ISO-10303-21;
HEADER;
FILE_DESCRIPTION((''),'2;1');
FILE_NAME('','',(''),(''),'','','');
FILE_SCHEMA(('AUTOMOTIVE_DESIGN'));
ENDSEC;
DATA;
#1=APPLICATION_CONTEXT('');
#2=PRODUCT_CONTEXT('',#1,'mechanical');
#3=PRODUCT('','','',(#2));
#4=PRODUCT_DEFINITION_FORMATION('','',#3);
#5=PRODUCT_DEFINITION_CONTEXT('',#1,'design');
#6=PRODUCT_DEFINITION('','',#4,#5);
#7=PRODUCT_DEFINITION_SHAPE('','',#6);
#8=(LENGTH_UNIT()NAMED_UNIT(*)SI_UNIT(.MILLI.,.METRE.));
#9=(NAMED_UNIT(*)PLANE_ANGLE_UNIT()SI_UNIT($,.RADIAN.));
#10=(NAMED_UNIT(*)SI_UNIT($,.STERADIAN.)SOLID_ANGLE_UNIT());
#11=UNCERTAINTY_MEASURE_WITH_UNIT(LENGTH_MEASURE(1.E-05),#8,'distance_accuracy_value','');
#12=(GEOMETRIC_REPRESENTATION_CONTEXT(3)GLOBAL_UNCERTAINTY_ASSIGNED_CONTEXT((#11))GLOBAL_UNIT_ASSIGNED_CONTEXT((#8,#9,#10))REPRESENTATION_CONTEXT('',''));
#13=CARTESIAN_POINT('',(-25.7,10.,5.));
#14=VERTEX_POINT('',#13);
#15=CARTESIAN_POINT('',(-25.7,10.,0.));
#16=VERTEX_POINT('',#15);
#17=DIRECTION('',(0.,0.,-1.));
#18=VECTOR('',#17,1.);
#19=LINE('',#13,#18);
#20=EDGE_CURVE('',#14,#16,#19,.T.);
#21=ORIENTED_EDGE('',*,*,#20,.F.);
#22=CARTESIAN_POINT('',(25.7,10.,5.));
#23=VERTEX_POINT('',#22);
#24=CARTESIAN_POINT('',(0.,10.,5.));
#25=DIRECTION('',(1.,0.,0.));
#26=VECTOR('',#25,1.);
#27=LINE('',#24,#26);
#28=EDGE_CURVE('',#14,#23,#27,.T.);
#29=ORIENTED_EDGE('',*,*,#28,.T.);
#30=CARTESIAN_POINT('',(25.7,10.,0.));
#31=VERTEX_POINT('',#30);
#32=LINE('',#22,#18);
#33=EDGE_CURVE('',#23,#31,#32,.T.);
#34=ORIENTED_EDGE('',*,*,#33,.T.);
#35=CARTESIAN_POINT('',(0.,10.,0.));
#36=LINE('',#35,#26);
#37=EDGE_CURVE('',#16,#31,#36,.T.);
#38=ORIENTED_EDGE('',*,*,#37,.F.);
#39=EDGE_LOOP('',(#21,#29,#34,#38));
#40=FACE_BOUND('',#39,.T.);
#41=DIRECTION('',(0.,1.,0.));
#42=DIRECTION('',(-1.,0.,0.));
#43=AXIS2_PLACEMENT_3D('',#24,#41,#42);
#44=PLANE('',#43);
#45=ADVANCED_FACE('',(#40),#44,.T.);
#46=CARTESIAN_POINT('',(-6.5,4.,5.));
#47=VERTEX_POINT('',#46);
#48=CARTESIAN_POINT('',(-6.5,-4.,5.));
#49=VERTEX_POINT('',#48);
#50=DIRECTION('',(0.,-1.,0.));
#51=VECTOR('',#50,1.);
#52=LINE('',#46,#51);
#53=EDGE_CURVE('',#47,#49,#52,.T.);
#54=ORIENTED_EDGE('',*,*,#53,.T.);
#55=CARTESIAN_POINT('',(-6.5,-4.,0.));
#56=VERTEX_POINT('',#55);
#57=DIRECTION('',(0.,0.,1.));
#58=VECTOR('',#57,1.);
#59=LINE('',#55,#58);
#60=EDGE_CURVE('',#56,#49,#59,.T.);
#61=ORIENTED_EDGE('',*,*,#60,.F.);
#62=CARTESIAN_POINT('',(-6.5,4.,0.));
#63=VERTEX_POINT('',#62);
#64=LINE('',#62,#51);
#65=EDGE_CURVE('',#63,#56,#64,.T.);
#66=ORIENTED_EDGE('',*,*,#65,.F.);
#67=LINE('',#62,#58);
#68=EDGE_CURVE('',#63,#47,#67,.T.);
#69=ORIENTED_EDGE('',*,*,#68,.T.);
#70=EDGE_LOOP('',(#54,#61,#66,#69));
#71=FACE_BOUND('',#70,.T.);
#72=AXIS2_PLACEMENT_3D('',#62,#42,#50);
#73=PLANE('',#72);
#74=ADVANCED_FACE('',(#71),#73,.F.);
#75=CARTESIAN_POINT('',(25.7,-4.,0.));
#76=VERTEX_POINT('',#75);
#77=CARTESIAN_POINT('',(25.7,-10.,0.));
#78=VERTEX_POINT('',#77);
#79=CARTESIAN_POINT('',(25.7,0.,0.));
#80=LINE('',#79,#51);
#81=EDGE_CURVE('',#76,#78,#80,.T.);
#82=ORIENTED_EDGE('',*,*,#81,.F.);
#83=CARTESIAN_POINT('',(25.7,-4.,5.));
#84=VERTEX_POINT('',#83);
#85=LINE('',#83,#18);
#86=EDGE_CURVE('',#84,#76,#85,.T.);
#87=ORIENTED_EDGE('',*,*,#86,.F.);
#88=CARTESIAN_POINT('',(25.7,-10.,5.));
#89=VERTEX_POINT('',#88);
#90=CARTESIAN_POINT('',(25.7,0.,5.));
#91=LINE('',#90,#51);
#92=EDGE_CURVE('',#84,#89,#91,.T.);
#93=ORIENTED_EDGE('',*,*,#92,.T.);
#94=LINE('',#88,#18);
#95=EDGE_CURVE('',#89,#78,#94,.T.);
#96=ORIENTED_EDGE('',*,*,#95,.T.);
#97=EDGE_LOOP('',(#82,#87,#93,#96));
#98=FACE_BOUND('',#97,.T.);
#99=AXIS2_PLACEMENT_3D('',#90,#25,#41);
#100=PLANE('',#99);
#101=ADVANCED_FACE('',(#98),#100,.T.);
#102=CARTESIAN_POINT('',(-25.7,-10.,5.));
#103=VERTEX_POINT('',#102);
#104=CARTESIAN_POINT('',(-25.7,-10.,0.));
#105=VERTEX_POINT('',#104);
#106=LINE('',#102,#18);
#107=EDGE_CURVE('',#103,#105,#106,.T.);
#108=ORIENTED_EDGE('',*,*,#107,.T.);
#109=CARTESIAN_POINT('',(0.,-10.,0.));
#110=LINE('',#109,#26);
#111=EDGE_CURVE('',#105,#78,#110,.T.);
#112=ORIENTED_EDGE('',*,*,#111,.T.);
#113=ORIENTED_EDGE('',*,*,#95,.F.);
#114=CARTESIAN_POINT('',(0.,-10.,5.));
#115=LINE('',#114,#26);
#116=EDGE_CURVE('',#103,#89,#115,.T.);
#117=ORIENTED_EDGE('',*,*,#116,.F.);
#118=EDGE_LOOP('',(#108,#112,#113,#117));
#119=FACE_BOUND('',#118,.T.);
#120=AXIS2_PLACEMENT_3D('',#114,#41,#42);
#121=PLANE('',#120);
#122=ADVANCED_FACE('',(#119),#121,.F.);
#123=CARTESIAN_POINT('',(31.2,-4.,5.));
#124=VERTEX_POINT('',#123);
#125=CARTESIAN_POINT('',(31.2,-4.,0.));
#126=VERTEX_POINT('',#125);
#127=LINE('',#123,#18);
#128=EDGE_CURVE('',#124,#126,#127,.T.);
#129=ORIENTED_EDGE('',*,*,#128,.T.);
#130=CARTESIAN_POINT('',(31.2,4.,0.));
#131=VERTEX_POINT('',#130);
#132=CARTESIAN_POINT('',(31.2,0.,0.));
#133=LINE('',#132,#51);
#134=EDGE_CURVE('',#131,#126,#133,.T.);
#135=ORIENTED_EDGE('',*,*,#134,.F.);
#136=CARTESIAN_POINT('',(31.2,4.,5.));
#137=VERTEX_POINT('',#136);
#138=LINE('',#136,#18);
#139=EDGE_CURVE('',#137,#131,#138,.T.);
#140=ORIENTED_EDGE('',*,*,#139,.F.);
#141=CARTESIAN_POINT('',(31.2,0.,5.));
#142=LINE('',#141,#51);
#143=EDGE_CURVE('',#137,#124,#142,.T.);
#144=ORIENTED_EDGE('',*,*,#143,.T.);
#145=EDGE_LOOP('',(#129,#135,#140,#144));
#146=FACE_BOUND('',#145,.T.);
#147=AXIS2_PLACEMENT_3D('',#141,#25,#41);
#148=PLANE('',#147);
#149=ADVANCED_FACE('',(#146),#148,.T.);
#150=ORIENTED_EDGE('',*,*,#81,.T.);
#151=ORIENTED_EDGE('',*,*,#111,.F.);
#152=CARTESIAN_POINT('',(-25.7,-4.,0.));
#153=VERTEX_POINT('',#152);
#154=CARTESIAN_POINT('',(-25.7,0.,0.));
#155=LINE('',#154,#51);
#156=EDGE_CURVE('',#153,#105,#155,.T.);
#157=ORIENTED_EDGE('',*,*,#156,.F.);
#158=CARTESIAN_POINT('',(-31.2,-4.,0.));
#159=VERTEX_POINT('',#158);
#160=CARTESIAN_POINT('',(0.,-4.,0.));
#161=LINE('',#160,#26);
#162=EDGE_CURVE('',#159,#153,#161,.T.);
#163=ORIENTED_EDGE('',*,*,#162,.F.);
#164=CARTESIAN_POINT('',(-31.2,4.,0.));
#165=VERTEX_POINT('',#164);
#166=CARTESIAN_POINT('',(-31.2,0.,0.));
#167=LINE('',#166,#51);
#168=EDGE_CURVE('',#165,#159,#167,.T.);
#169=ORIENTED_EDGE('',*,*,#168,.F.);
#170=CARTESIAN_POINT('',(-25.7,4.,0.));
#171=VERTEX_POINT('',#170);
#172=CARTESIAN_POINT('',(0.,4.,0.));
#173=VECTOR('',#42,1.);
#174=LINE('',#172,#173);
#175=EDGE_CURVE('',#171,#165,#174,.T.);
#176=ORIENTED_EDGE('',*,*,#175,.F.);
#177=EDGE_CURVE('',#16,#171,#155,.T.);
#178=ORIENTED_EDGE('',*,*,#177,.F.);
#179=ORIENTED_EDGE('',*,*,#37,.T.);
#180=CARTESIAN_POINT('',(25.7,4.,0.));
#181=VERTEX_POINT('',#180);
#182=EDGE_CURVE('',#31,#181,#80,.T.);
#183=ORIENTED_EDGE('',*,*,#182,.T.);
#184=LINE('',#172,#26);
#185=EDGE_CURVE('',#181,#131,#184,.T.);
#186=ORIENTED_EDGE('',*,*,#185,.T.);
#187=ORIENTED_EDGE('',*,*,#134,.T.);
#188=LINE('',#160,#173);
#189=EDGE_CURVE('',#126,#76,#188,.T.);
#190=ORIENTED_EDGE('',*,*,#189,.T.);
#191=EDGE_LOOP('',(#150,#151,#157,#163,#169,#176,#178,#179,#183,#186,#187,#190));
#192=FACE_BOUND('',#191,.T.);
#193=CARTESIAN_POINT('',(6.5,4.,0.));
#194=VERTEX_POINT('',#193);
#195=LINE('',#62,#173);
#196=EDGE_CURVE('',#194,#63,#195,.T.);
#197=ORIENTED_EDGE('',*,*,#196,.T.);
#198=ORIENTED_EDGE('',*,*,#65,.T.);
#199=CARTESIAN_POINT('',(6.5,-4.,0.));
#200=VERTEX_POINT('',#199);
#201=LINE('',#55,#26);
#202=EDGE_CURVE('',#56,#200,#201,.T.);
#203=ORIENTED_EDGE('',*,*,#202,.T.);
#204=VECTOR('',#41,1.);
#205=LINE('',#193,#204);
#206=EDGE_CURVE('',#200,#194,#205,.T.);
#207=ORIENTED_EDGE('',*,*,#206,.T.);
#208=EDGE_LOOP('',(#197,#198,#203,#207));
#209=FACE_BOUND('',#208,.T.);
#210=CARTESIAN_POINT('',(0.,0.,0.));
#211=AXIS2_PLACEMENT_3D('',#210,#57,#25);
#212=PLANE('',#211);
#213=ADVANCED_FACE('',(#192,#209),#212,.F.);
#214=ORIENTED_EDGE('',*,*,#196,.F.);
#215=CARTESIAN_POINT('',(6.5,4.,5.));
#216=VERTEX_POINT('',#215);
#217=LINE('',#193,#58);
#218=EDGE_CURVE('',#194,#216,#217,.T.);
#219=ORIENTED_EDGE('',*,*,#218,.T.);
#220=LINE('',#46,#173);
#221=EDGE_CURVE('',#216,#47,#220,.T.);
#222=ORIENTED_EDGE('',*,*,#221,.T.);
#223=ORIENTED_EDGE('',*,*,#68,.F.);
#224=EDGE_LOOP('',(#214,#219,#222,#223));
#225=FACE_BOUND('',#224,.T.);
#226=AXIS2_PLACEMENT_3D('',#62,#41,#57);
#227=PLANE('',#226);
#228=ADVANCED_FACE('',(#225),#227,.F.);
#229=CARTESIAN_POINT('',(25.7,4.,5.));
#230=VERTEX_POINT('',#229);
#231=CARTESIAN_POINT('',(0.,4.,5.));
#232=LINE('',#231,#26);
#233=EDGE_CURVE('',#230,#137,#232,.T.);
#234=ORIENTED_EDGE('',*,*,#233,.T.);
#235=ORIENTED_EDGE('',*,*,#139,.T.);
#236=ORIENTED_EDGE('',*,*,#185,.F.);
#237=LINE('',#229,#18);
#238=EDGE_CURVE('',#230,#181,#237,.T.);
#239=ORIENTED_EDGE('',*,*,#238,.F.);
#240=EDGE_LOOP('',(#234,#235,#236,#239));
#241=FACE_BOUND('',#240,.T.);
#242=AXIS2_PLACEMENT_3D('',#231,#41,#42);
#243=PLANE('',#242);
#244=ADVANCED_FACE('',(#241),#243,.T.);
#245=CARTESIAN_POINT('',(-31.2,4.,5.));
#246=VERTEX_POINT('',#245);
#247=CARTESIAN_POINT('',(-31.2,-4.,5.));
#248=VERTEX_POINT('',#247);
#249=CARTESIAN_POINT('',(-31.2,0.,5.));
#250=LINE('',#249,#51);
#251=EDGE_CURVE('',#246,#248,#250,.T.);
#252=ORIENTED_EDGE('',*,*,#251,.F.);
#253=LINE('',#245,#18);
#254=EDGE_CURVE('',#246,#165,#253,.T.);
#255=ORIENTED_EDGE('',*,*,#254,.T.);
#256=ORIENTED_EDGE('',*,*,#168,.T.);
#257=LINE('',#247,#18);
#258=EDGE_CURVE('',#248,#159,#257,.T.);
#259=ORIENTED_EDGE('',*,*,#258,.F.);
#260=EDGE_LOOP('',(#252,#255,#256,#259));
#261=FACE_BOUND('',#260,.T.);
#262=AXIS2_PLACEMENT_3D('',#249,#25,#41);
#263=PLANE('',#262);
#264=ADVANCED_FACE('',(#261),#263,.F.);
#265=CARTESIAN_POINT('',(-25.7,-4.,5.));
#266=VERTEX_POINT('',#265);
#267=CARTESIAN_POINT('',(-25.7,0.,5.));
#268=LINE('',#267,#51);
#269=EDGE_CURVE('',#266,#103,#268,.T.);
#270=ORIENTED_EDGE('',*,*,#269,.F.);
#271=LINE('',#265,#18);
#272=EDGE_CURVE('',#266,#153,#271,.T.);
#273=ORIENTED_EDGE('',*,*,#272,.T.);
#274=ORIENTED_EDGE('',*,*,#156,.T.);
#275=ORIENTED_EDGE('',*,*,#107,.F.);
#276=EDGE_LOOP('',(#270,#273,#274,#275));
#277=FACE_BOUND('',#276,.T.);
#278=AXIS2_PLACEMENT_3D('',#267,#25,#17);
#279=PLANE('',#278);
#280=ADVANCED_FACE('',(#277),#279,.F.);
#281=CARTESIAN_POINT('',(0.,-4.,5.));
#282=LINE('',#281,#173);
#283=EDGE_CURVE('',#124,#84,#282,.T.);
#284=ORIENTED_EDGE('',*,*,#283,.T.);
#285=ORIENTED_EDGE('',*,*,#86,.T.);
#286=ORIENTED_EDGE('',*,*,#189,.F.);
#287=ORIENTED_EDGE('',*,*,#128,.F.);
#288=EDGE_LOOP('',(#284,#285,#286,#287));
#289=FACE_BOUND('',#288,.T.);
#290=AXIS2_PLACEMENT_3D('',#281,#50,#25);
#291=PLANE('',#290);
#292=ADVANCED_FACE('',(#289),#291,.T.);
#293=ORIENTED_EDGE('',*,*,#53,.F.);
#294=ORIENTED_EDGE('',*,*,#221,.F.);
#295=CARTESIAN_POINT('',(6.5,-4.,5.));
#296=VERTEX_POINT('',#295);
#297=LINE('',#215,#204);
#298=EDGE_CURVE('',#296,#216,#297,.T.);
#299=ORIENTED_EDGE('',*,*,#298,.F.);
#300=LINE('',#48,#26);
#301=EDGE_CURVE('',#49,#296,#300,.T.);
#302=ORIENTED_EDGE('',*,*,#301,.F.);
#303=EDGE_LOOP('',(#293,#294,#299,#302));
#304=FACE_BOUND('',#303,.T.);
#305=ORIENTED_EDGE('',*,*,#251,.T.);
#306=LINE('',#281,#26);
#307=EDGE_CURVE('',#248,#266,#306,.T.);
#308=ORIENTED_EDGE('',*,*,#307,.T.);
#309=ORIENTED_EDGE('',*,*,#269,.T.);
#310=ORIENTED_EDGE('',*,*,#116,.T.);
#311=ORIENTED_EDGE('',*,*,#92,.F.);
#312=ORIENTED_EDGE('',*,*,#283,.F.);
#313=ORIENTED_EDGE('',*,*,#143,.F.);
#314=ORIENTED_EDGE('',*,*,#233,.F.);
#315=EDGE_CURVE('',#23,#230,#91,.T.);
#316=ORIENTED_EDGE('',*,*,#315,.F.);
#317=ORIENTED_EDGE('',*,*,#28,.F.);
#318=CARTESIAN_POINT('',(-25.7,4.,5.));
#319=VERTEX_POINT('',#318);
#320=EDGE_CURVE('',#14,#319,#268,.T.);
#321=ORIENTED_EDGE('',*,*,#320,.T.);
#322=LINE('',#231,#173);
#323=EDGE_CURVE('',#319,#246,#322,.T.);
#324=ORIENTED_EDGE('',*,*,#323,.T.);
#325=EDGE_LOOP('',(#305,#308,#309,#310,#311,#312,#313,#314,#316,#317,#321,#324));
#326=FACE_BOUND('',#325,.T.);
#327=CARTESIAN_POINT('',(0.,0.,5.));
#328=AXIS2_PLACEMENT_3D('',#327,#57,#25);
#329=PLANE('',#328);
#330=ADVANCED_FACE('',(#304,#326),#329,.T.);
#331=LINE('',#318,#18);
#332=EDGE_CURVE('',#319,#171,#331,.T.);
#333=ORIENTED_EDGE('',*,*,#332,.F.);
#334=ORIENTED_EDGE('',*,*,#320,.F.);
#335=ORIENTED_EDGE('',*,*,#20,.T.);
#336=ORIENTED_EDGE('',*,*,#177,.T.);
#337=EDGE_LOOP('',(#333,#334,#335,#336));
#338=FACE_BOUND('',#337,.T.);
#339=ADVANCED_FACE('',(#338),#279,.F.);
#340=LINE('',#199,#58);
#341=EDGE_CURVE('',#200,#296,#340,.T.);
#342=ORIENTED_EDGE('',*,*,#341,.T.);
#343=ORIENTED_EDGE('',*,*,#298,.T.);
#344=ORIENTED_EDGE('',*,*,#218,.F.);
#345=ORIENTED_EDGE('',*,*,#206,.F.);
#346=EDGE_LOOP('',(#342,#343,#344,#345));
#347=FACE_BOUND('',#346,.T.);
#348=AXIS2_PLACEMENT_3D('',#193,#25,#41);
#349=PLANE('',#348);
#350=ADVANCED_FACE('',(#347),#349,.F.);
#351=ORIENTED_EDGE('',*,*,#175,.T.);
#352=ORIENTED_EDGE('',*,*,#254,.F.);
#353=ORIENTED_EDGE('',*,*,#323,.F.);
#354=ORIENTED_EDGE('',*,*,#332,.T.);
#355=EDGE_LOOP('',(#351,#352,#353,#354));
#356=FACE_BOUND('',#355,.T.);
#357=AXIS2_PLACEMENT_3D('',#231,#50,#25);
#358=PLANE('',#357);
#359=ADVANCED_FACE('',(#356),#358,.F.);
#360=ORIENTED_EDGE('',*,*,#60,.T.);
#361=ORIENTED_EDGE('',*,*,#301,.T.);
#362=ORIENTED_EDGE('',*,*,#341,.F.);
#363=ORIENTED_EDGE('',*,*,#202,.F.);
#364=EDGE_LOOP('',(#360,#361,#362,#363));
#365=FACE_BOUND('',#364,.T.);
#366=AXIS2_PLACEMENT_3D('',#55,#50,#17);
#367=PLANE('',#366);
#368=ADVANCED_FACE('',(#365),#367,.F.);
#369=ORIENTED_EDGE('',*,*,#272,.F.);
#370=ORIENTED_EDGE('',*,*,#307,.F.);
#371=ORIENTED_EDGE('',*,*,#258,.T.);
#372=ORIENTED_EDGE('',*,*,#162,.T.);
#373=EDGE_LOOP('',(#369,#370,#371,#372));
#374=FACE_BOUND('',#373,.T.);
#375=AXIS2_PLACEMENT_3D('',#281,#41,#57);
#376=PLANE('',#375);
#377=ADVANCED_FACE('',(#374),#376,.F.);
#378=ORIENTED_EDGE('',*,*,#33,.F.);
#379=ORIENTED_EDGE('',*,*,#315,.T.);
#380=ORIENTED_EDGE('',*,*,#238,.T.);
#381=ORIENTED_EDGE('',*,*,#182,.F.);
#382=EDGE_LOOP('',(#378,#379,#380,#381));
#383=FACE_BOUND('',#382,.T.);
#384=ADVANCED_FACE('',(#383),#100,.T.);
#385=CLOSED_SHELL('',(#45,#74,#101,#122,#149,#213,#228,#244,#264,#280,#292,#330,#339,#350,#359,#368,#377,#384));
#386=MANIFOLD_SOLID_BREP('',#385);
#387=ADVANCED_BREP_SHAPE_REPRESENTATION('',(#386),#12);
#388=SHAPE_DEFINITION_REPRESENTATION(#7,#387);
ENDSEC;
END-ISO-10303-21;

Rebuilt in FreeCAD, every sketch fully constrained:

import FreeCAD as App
import Part
import Sketcher
Q = App.Units.Quantity

doc = App.newDocument("Part")
body = doc.addObject("PartDesign::Body", "Body")

# Sketch on XY plane
sketch1 = body.newObject("Sketcher::SketchObject", "Sketch")
sketch1.AttachmentSupport = (doc.getObject("XY_Plane"), [""])
sketch1.MapMode = "FlatFace"
sketch1.addGeometry([
    Part.LineSegment(App.Vector(26, 10, 0), App.Vector(-26, 10, 0)),  # 0
    Part.LineSegment(App.Vector(-26, 10, 0), App.Vector(-26, 4, 0)),  # 1
    Part.LineSegment(App.Vector(-26, 4, 0), App.Vector(-31, 4, 0)),  # 2
    Part.LineSegment(App.Vector(-31, 4, 0), App.Vector(-31, -4, 0)),  # 3
    Part.LineSegment(App.Vector(-31, -4, 0), App.Vector(-26, -4, 0)),  # 4
    Part.LineSegment(App.Vector(-26, -4, 0), App.Vector(-26, -10, 0)),  # 5
    Part.LineSegment(App.Vector(-26, -10, 0), App.Vector(26, -10, 0)),  # 6
    Part.LineSegment(App.Vector(26, -10, 0), App.Vector(26, -4, 0)),  # 7
    Part.LineSegment(App.Vector(26, -4, 0), App.Vector(31, -4, 0)),  # 8
    Part.LineSegment(App.Vector(31, -4, 0), App.Vector(31, 4, 0)),  # 9
    Part.LineSegment(App.Vector(31, 4, 0), App.Vector(26, 4, 0)),  # 10
    Part.LineSegment(App.Vector(26, 4, 0), App.Vector(26, 10, 0)),  # 11
], False)
sketch1.addConstraint([
    Sketcher.Constraint("Coincident", 0, 2, 1, 1),
    Sketcher.Constraint("Coincident", 1, 2, 2, 1),
    Sketcher.Constraint("Coincident", 2, 2, 3, 1),
    Sketcher.Constraint("Coincident", 3, 2, 4, 1),
    Sketcher.Constraint("Coincident", 4, 2, 5, 1),
    Sketcher.Constraint("Coincident", 5, 2, 6, 1),
    Sketcher.Constraint("Coincident", 6, 2, 7, 1),
    Sketcher.Constraint("Coincident", 7, 2, 8, 1),
    Sketcher.Constraint("Coincident", 8, 2, 9, 1),
    Sketcher.Constraint("Coincident", 9, 2, 10, 1),
    Sketcher.Constraint("Coincident", 10, 2, 11, 1),
    Sketcher.Constraint("Coincident", 11, 2, 0, 1),
    Sketcher.Constraint("Horizontal", 0),
    Sketcher.Constraint("Vertical", 1),
    Sketcher.Constraint("Horizontal", 2),
    Sketcher.Constraint("Vertical", 3),
    Sketcher.Constraint("Horizontal", 4),
    Sketcher.Constraint("Vertical", 5),
    Sketcher.Constraint("Horizontal", 6),
    Sketcher.Constraint("Vertical", 7),
    Sketcher.Constraint("Horizontal", 8),
    Sketcher.Constraint("Vertical", 9),
    Sketcher.Constraint("Horizontal", 10),
    Sketcher.Constraint("Vertical", 11),
    Sketcher.Constraint("Symmetric", 0, 2, 6, 2, -1, 1),
    Sketcher.Constraint("Symmetric", 2, 2, 8, 2, -1, 1),
    Sketcher.Constraint("Symmetric", 4, 2, 10, 2, -1, 1),
    Sketcher.Constraint("Symmetric", 4, 2, 7, 2, -2),
    Sketcher.Constraint("DistanceY", 1, 2, 1, 1, Q("6 mm")),
    Sketcher.Constraint("DistanceY", 3, 2, 3, 1, Q("8 mm")),
    Sketcher.Constraint("DistanceX", 0, 2, 0, 1, Q("51.4 mm")),
    Sketcher.Constraint("DistanceX", 2, 2, 2, 1, Q("5.5 mm")),
])
pad1 = body.newObject("PartDesign::Pad", "Pad")
pad1.Profile = sketch1
pad1.Length = 5

# Sketch on XY plane
sketch2 = body.newObject("Sketcher::SketchObject", "Sketch001")
sketch2.AttachmentSupport = (doc.getObject("XY_Plane"), [""])
sketch2.MapMode = "FlatFace"
sketch2.AttachmentOffset = App.Placement(App.Vector(0, 0, 5), App.Rotation())
sketch2.addGeometry([
    Part.LineSegment(App.Vector(-6, 4, 0), App.Vector(-6, -4, 0)),
    Part.LineSegment(App.Vector(-6, -4, 0), App.Vector(6, -4, 0)),
    Part.LineSegment(App.Vector(6, -4, 0), App.Vector(6, 4, 0)),
    Part.LineSegment(App.Vector(6, 4, 0), App.Vector(-6, 4, 0)),
], False)
sketch2.addConstraint([
    Sketcher.Constraint("Coincident", 0, 2, 1, 1),
    Sketcher.Constraint("Coincident", 1, 2, 2, 1),
    Sketcher.Constraint("Coincident", 2, 2, 3, 1),
    Sketcher.Constraint("Coincident", 3, 2, 0, 1),
    Sketcher.Constraint("Vertical", 0),
    Sketcher.Constraint("Horizontal", 1),
    Sketcher.Constraint("Vertical", 2),
    Sketcher.Constraint("Horizontal", 3),
    Sketcher.Constraint("Symmetric", 0, 2, 2, 2, -1, 1),
    Sketcher.Constraint("DistanceX", 1, 1, 1, 2, Q("13 mm")),
    Sketcher.Constraint("DistanceY", 0, 2, 0, 1, Q("8 mm")),
])
pocket1 = body.newObject("PartDesign::Pocket", "Pocket")
pocket1.Profile = sketch2
pocket1.Length = 5

doc.recompute()
